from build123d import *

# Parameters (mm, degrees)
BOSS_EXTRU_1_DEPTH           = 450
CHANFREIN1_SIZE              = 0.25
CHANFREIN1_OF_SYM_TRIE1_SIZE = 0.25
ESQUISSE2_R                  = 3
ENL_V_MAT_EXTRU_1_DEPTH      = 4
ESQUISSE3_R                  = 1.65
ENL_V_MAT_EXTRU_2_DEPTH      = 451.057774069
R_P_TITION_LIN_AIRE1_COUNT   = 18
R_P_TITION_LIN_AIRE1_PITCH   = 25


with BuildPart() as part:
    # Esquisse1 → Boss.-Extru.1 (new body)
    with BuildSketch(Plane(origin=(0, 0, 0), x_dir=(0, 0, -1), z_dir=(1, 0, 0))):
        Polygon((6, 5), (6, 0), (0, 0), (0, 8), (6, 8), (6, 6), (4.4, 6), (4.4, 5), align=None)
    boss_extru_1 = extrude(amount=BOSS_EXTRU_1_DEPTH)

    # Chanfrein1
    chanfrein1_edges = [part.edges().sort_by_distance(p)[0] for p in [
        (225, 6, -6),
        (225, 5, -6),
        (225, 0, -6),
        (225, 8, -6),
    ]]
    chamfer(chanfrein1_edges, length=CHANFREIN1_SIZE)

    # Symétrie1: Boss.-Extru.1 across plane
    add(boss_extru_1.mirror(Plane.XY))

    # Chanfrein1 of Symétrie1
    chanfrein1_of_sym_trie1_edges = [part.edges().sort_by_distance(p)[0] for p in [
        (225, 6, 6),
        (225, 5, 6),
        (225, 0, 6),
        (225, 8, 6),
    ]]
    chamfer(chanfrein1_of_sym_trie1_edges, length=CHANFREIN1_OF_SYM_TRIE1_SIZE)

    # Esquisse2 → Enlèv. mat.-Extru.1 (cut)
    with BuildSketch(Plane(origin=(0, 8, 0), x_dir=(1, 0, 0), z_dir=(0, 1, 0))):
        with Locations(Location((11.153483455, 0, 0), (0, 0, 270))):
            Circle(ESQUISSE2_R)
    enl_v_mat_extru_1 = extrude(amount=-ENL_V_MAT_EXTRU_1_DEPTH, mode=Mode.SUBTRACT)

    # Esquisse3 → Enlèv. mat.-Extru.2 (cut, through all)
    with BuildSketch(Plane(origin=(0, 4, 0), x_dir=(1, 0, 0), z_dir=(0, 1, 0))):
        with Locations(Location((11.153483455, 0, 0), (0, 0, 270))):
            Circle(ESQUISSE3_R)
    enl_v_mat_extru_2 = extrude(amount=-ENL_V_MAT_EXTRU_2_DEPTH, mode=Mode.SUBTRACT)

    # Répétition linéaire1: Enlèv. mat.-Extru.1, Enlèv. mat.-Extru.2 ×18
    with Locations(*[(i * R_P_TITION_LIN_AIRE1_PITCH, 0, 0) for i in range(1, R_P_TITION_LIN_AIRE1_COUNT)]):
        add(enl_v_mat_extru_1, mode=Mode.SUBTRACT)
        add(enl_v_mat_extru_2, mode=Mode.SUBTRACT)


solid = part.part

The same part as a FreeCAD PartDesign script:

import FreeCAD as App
import Part
import Sketcher


def edges_at(feature, points):
    """Names of the edges that pass closest to the given points."""
    edges = feature.Shape.Edges
    near = lambda p: min(range(len(edges)), key=lambda i: edges[i].distToShape(Part.Vertex(*p))[0])
    return sorted({f"Edge{near(p) + 1}" for p in points})

doc = App.newDocument("Part")
body = doc.addObject("PartDesign::Body", "Body")

# Sketch on YZ plane
sketch1 = body.newObject("Sketcher::SketchObject", "Sketch")
sketch1.AttachmentSupport = (doc.getObject("YZ_Plane"), [""])
sketch1.MapMode = "FlatFace"
sketch1.addGeometry(Part.LineSegment(App.Vector(0, -6, 0), App.Vector(5, -6, 0)), False)
sketch1.addGeometry(Part.LineSegment(App.Vector(5, -6, 0), App.Vector(5, -4.4, 0)), False)
sketch1.addGeometry(Part.LineSegment(App.Vector(5, -4.4, 0), App.Vector(6, -4.4, 0)), False)
sketch1.addGeometry(Part.LineSegment(App.Vector(6, -4.4, 0), App.Vector(6, -6, 0)), False)
sketch1.addGeometry(Part.LineSegment(App.Vector(6, -6, 0), App.Vector(8, -6, 0)), False)
sketch1.addGeometry(Part.LineSegment(App.Vector(8, -6, 0), App.Vector(8, 0, 0)), False)
sketch1.addGeometry(Part.LineSegment(App.Vector(8, 0, 0), App.Vector(0, 0, 0)), False)
sketch1.addGeometry(Part.LineSegment(App.Vector(0, 0, 0), App.Vector(0, -6, 0)), False)
sketch1.addConstraint(Sketcher.Constraint("Coincident", 0, 2, 1, 1))
sketch1.addConstraint(Sketcher.Constraint("Coincident", 1, 2, 2, 1))
sketch1.addConstraint(Sketcher.Constraint("Coincident", 2, 2, 3, 1))
sketch1.addConstraint(Sketcher.Constraint("Coincident", 3, 2, 4, 1))
sketch1.addConstraint(Sketcher.Constraint("Coincident", 4, 2, 5, 1))
sketch1.addConstraint(Sketcher.Constraint("Coincident", 5, 2, 6, 1))
sketch1.addConstraint(Sketcher.Constraint("Coincident", 6, 2, 7, 1))
sketch1.addConstraint(Sketcher.Constraint("Coincident", 7, 2, 0, 1))
sketch1.addConstraint(Sketcher.Constraint("Horizontal", 0))
sketch1.addConstraint(Sketcher.Constraint("Vertical", 1))
sketch1.addConstraint(Sketcher.Constraint("Horizontal", 2))
sketch1.addConstraint(Sketcher.Constraint("Vertical", 3))
sketch1.addConstraint(Sketcher.Constraint("Horizontal", 4))
sketch1.addConstraint(Sketcher.Constraint("Vertical", 5))
sketch1.addConstraint(Sketcher.Constraint("Horizontal", 6))
sketch1.addConstraint(Sketcher.Constraint("Vertical", 7))
sketch1.addConstraint(Sketcher.Constraint("Coincident", 6, 2, -1, 1))
sketch1.addConstraint(Sketcher.Constraint("Horizontal", 0, 2, 3, 2))
sketch1.addConstraint(Sketcher.Constraint("DistanceX", 0, 1, 0, 2, 5.0))
sketch1.addConstraint(Sketcher.Constraint("DistanceX", 2, 1, 2, 2, 1.0))
sketch1.addConstraint(Sketcher.Constraint("DistanceX", 4, 1, 4, 2, 2.0))
sketch1.addConstraint(Sketcher.Constraint("DistanceY", 5, 1, 5, 2, 6.0))
sketch1.addConstraint(Sketcher.Constraint("DistanceY", 1, 1, 1, 2, 1.6))
pad1 = body.newObject("PartDesign::Pad", "Pad")
pad1.Profile = sketch1
pad1.Length = 450
doc.recompute()

chamfer = body.newObject("PartDesign::Chamfer", "Chamfer")
chamfer.Base = (pad1, edges_at(pad1, [
    (225, 6, -6),
    (225, 5, -6),
    (225, 0, -6),
    (225, 8, -6),
]))
chamfer.Size = 0.25
doc.recompute()

mirrored = body.newObject("PartDesign::Mirrored", "Mirrored")
mirrored.Originals = [pad1]
mirrored.MirrorPlane = (doc.getObject("XY_Plane"), [""])
body.Tip = mirrored
doc.recompute()

chamfer2 = body.newObject("PartDesign::Chamfer", "Chamfer001")
chamfer2.Base = (mirrored, edges_at(mirrored, [
    (225, 6, 6),
    (225, 5, 6),
    (225, 0, 6),
    (225, 8, 6),
]))
chamfer2.Size = 0.25

# Sketch on XZ plane
sketch2 = body.newObject("Sketcher::SketchObject", "Sketch001")
sketch2.AttachmentSupport = (doc.getObject("XZ_Plane"), [""])
sketch2.MapMode = "FlatFace"
sketch2.AttachmentOffset = App.Placement(App.Vector(0, 0, -8), App.Rotation())
sketch2.addGeometry(Part.Circle(App.Vector(11.2, 0, 0), App.Vector(0, 0, 1), 3), False)
sketch2.addConstraint(Sketcher.Constraint("PointOnObject", 0, 3, -1))
sketch2.addConstraint(Sketcher.Constraint("Diameter", 0, 6.0))
sketch2.addConstraint(Sketcher.Constraint("DistanceX", -1, 1, 0, 3, 11.153483))
pocket1 = body.newObject("PartDesign::Pocket", "Pocket")
pocket1.Profile = sketch2
pocket1.Length = 4
pocket1.Reversed = True

# Sketch on XZ plane
sketch3 = body.newObject("Sketcher::SketchObject", "Sketch002")
sketch3.AttachmentSupport = (doc.getObject("XZ_Plane"), [""])
sketch3.MapMode = "FlatFace"
sketch3.AttachmentOffset = App.Placement(App.Vector(0, 0, -4), App.Rotation())
sketch3.addGeometry(Part.Circle(App.Vector(11.2, 0, 0), App.Vector(0, 0, 1), 1.6), False)
sketch3.addConstraint(Sketcher.Constraint("PointOnObject", 0, 3, -1))
sketch3.addConstraint(Sketcher.Constraint("Diameter", 0, 3.3))
sketch3.addConstraint(Sketcher.Constraint("DistanceX", -1, 1, 0, 3, 11.153483))
pocket2 = body.newObject("PartDesign::Pocket", "Pocket001")
pocket2.Profile = sketch3
pocket2.Type = "ThroughAll"
pocket2.Reversed = True
doc.recompute()

linearpattern = body.newObject("PartDesign::LinearPattern", "LinearPattern")
linearpattern.Originals = [pocket1, pocket2]
linearpattern.Direction = (doc.getObject("X_Axis"), [""])
linearpattern.Mode = "offset"
linearpattern.Offset = 25
linearpattern.Occurrences = 18
body.Tip = linearpattern

doc.recompute()
